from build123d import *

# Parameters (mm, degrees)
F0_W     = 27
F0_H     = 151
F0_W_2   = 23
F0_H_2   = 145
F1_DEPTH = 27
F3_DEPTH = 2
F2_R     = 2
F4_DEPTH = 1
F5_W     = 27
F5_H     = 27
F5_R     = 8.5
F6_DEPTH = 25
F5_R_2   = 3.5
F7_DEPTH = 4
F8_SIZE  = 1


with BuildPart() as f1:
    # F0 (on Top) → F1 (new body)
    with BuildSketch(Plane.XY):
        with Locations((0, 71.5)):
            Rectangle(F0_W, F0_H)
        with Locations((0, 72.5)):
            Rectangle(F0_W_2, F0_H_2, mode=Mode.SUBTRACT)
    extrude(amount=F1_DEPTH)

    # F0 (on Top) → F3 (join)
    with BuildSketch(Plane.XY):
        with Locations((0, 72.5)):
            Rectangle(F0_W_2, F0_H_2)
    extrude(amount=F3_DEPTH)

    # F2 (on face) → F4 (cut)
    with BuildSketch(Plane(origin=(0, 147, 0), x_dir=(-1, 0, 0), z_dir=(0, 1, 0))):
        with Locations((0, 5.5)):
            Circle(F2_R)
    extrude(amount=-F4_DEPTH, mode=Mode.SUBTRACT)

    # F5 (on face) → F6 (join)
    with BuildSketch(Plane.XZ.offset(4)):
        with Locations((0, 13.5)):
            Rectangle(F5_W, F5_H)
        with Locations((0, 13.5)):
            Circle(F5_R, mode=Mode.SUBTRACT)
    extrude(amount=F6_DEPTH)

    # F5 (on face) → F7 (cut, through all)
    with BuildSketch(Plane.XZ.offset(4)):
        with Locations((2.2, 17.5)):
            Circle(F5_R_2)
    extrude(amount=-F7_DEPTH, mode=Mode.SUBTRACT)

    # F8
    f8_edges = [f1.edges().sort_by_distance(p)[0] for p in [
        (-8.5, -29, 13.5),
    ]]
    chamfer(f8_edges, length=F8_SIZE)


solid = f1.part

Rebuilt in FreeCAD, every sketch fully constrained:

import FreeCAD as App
import Part
import Sketcher

V = App.Vector


def edges_at(feature, points):
    """Names of the edges that pass closest to the given points."""
    edges = feature.Shape.Edges
    near = lambda p: min(range(len(edges)), key=lambda i: edges[i].distToShape(Part.Vertex(*p))[0])
    return sorted({f"Edge{near(p) + 1}" for p in points})

doc = App.newDocument("Part")
params = doc.addObject("Spreadsheet::Sheet", "Params")
for row, (alias, value) in enumerate([
    ("sketch1_width", "27 mm"),
    ("sketch1_width2", "23 mm"),
    ("sketch1_height", "151 mm"),
    ("sketch1_height2", "145 mm"),
    ("pad1_length", "27 mm"),
    ("sketch2_width", "23 mm"),
    ("sketch2_height", "145 mm"),
    ("pad2_length", "2 mm"),
    ("sketch3_diameter", "4 mm"),
    ("pocket1_length", "1 mm"),
    ("sketch4_diameter", "17 mm"),
    ("sketch4_width", "27 mm"),
    ("pad3_length", "25 mm"),
    ("sketch5_diameter", "7 mm"),
    ("pocket2_length", "4 mm"),
    ("chamfer_size", "1 mm"),
], start=1):
    params.set(f"A{row}", alias)
    params.set(f"B{row}", "=" + value)
    params.setAlias(f"B{row}", alias)

body = doc.addObject("PartDesign::Body", "Body")

# Sketch on XY plane
sketch1 = body.newObject("Sketcher::SketchObject", "Sketch")
sketch1.AttachmentSupport = (doc.getObject("XY_Plane"), [""])
sketch1.MapMode = "FlatFace"
sketch1.addGeometry([
    Part.LineSegment(V(-14, 147, 0), V(-14, -4, 0)),  # 0
    Part.LineSegment(V(-14, -4, 0), V(14, -4, 0)),  # 1
    Part.LineSegment(V(14, -4, 0), V(14, 147, 0)),  # 2
    Part.LineSegment(V(14, 147, 0), V(-14, 147, 0)),  # 3
    Part.LineSegment(V(12, 0, 0), V(-12, 0, 0)),  # 4
    Part.LineSegment(V(-12, 0, 0), V(-12, 145, 0)),  # 5
    Part.LineSegment(V(-12, 145, 0), V(12, 145, 0)),  # 6
    Part.LineSegment(V(12, 145, 0), V(12, 0, 0)),  # 7
], False)
sketch1.addConstraint([
    Sketcher.Constraint("Coincident", 0, 2, 1, 1),
    Sketcher.Constraint("Coincident", 1, 2, 2, 1),
    Sketcher.Constraint("Coincident", 2, 2, 3, 1),
    Sketcher.Constraint("Coincident", 3, 2, 0, 1),
    Sketcher.Constraint("Coincident", 4, 2, 5, 1),
    Sketcher.Constraint("Coincident", 5, 2, 6, 1),
    Sketcher.Constraint("Coincident", 6, 2, 7, 1),
    Sketcher.Constraint("Coincident", 7, 2, 4, 1),
    Sketcher.Constraint("Vertical", 0),
    Sketcher.Constraint("Horizontal", 1),
    Sketcher.Constraint("Vertical", 2),
    Sketcher.Constraint("Horizontal", 3),
    Sketcher.Constraint("Horizontal", 4),
    Sketcher.Constraint("Vertical", 5),
    Sketcher.Constraint("Horizontal", 6),
    Sketcher.Constraint("Vertical", 7),
    Sketcher.Constraint("Symmetric", 4, 2, 7, 2, -1, 1),
    Sketcher.Constraint("DistanceX", 1, 1, 1, 2, 27.0),
    Sketcher.Constraint("DistanceX", 4, 2, 4, 1, 23.0),
    Sketcher.Constraint("DistanceY", 0, 2, 0, 1, 151.0),
    Sketcher.Constraint("DistanceY", 5, 1, 5, 2, 145.0),
    Sketcher.Constraint("DistanceY", 0, 2, -1, 1, 4.0),
    Sketcher.Constraint("DistanceX", 0, 2, 4, 2, 2.0),
])
sketch1.setExpression("Constraints[17]", "Params.sketch1_width")
sketch1.setExpression("Constraints[18]", "Params.sketch1_width2")
sketch1.setExpression("Constraints[19]", "Params.sketch1_height")
sketch1.setExpression("Constraints[20]", "Params.sketch1_height2")
pad1 = body.newObject("PartDesign::Pad", "Pad")
pad1.Profile = sketch1
pad1.setExpression("Length", "Params.pad1_length")

# Sketch on XY plane
sketch2 = body.newObject("Sketcher::SketchObject", "Sketch001")
sketch2.AttachmentSupport = (doc.getObject("XY_Plane"), [""])
sketch2.MapMode = "FlatFace"
sketch2.addGeometry([
    Part.LineSegment(V(-12, 145, 0), V(-12, 0, 0)),
    Part.LineSegment(V(-12, 0, 0), V(12, 0, 0)),
    Part.LineSegment(V(12, 0, 0), V(12, 145, 0)),
    Part.LineSegment(V(12, 145, 0), V(-12, 145, 0)),
], False)
sketch2.addConstraint([
    Sketcher.Constraint("Coincident", 0, 2, 1, 1),
    Sketcher.Constraint("Coincident", 1, 2, 2, 1),
    Sketcher.Constraint("Coincident", 2, 2, 3, 1),
    Sketcher.Constraint("Coincident", 3, 2, 0, 1),
    Sketcher.Constraint("Vertical", 0),
    Sketcher.Constraint("Horizontal", 1),
    Sketcher.Constraint("Vertical", 2),
    Sketcher.Constraint("Horizontal", 3),
    Sketcher.Constraint("Symmetric", 0, 2, 1, 2, -1, 1),
    Sketcher.Constraint("DistanceX", 1, 1, 1, 2, 23.0),
    Sketcher.Constraint("DistanceY", 0, 2, 0, 1, 145.0),
])
sketch2.setExpression("Constraints[9]", "Params.sketch2_width")
sketch2.setExpression("Constraints[10]", "Params.sketch2_height")
pad2 = body.newObject("PartDesign::Pad", "Pad001")
pad2.Profile = sketch2
pad2.setExpression("Length", "Params.pad2_length")

# Sketch on XZ plane
sketch3 = body.newObject("Sketcher::SketchObject", "Sketch002")
sketch3.AttachmentSupport = (doc.getObject("XZ_Plane"), [""])
sketch3.MapMode = "FlatFace"
sketch3.AttachmentOffset = App.Placement(V(0, 0, -147), App.Rotation())
sketch3.addGeometry(Part.Circle(V(0, 5.5, 0), V(0, 0, 1), 2), False)
sketch3.addConstraint([
    Sketcher.Constraint("PointOnObject", 0, 3, -2),
    Sketcher.Constraint("Diameter", 0, 4.0),
    Sketcher.Constraint("DistanceY", -1, 1, 0, 3, 5.5),
])
sketch3.setExpression("Constraints[1]", "Params.sketch3_diameter")
pocket1 = body.newObject("PartDesign::Pocket", "Pocket")
pocket1.Profile = sketch3
pocket1.setExpression("Length", "Params.pocket1_length")
pocket1.Reversed = True

# Sketch on XZ plane
sketch4 = body.newObject("Sketcher::SketchObject", "Sketch003")
sketch4.AttachmentSupport = (doc.getObject("XZ_Plane"), [""])
sketch4.MapMode = "FlatFace"
sketch4.AttachmentOffset = App.Placement(V(0, 0, 4), App.Rotation())
sketch4.addGeometry([
    Part.LineSegment(V(-14, 27, 0), V(-14, 0, 0)),  # 0
    Part.LineSegment(V(-14, 0, 0), V(14, 0, 0)),  # 1
    Part.LineSegment(V(14, 0, 0), V(14, 27, 0)),  # 2
    Part.LineSegment(V(14, 27, 0), V(-14, 27, 0)),  # 3
    Part.Circle(V(0, 14, 0), V(0, 0, 1), 8),  # 4
], False)
sketch4.addConstraint([
    Sketcher.Constraint("Coincident", 0, 2, 1, 1),
    Sketcher.Constraint("Coincident", 1, 2, 2, 1),
    Sketcher.Constraint("Coincident", 2, 2, 3, 1),
    Sketcher.Constraint("Coincident", 3, 2, 0, 1),
    Sketcher.Constraint("Vertical", 0),
    Sketcher.Constraint("Horizontal", 1),
    Sketcher.Constraint("Vertical", 2),
    Sketcher.Constraint("Horizontal", 3),
    Sketcher.Constraint("Symmetric", 0, 2, 1, 2, -1, 1),
    Sketcher.Constraint("PointOnObject", 4, 3, -2),
    Sketcher.Constraint("Equal", 3, 0),
    Sketcher.Constraint("Diameter", 4, 17.0),
    Sketcher.Constraint("DistanceX", 1, 1, 1, 2, 27.0),
    Sketcher.Constraint("DistanceY", -1, 1, 4, 3, 13.5),
])
sketch4.setExpression("Constraints[11]", "Params.sketch4_diameter")
sketch4.setExpression("Constraints[12]", "Params.sketch4_width")
pad3 = body.newObject("PartDesign::Pad", "Pad002")
pad3.Profile = sketch4
pad3.setExpression("Length", "Params.pad3_length")

# Sketch on XZ plane
sketch5 = body.newObject("Sketcher::SketchObject", "Sketch004")
sketch5.AttachmentSupport = (doc.getObject("XZ_Plane"), [""])
sketch5.MapMode = "FlatFace"
sketch5.AttachmentOffset = App.Placement(V(0, 0, 4), App.Rotation())
sketch5.addGeometry(Part.Circle(V(2.2, 17.5, 0), V(0, 0, 1), 3.5), False)
sketch5.addConstraint([
    Sketcher.Constraint("Diameter", 0, 7.0),
    Sketcher.Constraint("DistanceX", -1, 1, 0, 3, 2.2),
    Sketcher.Constraint("DistanceY", -1, 1, 0, 3, 17.5),
])
sketch5.setExpression("Constraints[0]", "Params.sketch5_diameter")
pocket2 = body.newObject("PartDesign::Pocket", "Pocket001")
pocket2.Profile = sketch5
pocket2.setExpression("Length", "Params.pocket2_length")
doc.recompute()

chamfer = body.newObject("PartDesign::Chamfer", "Chamfer")
chamfer.Base = (pocket2, edges_at(pocket2, [(-8.5, -29, 13.5)]))
chamfer.setExpression("Size", "Params.chamfer_size")

doc.recompute()
